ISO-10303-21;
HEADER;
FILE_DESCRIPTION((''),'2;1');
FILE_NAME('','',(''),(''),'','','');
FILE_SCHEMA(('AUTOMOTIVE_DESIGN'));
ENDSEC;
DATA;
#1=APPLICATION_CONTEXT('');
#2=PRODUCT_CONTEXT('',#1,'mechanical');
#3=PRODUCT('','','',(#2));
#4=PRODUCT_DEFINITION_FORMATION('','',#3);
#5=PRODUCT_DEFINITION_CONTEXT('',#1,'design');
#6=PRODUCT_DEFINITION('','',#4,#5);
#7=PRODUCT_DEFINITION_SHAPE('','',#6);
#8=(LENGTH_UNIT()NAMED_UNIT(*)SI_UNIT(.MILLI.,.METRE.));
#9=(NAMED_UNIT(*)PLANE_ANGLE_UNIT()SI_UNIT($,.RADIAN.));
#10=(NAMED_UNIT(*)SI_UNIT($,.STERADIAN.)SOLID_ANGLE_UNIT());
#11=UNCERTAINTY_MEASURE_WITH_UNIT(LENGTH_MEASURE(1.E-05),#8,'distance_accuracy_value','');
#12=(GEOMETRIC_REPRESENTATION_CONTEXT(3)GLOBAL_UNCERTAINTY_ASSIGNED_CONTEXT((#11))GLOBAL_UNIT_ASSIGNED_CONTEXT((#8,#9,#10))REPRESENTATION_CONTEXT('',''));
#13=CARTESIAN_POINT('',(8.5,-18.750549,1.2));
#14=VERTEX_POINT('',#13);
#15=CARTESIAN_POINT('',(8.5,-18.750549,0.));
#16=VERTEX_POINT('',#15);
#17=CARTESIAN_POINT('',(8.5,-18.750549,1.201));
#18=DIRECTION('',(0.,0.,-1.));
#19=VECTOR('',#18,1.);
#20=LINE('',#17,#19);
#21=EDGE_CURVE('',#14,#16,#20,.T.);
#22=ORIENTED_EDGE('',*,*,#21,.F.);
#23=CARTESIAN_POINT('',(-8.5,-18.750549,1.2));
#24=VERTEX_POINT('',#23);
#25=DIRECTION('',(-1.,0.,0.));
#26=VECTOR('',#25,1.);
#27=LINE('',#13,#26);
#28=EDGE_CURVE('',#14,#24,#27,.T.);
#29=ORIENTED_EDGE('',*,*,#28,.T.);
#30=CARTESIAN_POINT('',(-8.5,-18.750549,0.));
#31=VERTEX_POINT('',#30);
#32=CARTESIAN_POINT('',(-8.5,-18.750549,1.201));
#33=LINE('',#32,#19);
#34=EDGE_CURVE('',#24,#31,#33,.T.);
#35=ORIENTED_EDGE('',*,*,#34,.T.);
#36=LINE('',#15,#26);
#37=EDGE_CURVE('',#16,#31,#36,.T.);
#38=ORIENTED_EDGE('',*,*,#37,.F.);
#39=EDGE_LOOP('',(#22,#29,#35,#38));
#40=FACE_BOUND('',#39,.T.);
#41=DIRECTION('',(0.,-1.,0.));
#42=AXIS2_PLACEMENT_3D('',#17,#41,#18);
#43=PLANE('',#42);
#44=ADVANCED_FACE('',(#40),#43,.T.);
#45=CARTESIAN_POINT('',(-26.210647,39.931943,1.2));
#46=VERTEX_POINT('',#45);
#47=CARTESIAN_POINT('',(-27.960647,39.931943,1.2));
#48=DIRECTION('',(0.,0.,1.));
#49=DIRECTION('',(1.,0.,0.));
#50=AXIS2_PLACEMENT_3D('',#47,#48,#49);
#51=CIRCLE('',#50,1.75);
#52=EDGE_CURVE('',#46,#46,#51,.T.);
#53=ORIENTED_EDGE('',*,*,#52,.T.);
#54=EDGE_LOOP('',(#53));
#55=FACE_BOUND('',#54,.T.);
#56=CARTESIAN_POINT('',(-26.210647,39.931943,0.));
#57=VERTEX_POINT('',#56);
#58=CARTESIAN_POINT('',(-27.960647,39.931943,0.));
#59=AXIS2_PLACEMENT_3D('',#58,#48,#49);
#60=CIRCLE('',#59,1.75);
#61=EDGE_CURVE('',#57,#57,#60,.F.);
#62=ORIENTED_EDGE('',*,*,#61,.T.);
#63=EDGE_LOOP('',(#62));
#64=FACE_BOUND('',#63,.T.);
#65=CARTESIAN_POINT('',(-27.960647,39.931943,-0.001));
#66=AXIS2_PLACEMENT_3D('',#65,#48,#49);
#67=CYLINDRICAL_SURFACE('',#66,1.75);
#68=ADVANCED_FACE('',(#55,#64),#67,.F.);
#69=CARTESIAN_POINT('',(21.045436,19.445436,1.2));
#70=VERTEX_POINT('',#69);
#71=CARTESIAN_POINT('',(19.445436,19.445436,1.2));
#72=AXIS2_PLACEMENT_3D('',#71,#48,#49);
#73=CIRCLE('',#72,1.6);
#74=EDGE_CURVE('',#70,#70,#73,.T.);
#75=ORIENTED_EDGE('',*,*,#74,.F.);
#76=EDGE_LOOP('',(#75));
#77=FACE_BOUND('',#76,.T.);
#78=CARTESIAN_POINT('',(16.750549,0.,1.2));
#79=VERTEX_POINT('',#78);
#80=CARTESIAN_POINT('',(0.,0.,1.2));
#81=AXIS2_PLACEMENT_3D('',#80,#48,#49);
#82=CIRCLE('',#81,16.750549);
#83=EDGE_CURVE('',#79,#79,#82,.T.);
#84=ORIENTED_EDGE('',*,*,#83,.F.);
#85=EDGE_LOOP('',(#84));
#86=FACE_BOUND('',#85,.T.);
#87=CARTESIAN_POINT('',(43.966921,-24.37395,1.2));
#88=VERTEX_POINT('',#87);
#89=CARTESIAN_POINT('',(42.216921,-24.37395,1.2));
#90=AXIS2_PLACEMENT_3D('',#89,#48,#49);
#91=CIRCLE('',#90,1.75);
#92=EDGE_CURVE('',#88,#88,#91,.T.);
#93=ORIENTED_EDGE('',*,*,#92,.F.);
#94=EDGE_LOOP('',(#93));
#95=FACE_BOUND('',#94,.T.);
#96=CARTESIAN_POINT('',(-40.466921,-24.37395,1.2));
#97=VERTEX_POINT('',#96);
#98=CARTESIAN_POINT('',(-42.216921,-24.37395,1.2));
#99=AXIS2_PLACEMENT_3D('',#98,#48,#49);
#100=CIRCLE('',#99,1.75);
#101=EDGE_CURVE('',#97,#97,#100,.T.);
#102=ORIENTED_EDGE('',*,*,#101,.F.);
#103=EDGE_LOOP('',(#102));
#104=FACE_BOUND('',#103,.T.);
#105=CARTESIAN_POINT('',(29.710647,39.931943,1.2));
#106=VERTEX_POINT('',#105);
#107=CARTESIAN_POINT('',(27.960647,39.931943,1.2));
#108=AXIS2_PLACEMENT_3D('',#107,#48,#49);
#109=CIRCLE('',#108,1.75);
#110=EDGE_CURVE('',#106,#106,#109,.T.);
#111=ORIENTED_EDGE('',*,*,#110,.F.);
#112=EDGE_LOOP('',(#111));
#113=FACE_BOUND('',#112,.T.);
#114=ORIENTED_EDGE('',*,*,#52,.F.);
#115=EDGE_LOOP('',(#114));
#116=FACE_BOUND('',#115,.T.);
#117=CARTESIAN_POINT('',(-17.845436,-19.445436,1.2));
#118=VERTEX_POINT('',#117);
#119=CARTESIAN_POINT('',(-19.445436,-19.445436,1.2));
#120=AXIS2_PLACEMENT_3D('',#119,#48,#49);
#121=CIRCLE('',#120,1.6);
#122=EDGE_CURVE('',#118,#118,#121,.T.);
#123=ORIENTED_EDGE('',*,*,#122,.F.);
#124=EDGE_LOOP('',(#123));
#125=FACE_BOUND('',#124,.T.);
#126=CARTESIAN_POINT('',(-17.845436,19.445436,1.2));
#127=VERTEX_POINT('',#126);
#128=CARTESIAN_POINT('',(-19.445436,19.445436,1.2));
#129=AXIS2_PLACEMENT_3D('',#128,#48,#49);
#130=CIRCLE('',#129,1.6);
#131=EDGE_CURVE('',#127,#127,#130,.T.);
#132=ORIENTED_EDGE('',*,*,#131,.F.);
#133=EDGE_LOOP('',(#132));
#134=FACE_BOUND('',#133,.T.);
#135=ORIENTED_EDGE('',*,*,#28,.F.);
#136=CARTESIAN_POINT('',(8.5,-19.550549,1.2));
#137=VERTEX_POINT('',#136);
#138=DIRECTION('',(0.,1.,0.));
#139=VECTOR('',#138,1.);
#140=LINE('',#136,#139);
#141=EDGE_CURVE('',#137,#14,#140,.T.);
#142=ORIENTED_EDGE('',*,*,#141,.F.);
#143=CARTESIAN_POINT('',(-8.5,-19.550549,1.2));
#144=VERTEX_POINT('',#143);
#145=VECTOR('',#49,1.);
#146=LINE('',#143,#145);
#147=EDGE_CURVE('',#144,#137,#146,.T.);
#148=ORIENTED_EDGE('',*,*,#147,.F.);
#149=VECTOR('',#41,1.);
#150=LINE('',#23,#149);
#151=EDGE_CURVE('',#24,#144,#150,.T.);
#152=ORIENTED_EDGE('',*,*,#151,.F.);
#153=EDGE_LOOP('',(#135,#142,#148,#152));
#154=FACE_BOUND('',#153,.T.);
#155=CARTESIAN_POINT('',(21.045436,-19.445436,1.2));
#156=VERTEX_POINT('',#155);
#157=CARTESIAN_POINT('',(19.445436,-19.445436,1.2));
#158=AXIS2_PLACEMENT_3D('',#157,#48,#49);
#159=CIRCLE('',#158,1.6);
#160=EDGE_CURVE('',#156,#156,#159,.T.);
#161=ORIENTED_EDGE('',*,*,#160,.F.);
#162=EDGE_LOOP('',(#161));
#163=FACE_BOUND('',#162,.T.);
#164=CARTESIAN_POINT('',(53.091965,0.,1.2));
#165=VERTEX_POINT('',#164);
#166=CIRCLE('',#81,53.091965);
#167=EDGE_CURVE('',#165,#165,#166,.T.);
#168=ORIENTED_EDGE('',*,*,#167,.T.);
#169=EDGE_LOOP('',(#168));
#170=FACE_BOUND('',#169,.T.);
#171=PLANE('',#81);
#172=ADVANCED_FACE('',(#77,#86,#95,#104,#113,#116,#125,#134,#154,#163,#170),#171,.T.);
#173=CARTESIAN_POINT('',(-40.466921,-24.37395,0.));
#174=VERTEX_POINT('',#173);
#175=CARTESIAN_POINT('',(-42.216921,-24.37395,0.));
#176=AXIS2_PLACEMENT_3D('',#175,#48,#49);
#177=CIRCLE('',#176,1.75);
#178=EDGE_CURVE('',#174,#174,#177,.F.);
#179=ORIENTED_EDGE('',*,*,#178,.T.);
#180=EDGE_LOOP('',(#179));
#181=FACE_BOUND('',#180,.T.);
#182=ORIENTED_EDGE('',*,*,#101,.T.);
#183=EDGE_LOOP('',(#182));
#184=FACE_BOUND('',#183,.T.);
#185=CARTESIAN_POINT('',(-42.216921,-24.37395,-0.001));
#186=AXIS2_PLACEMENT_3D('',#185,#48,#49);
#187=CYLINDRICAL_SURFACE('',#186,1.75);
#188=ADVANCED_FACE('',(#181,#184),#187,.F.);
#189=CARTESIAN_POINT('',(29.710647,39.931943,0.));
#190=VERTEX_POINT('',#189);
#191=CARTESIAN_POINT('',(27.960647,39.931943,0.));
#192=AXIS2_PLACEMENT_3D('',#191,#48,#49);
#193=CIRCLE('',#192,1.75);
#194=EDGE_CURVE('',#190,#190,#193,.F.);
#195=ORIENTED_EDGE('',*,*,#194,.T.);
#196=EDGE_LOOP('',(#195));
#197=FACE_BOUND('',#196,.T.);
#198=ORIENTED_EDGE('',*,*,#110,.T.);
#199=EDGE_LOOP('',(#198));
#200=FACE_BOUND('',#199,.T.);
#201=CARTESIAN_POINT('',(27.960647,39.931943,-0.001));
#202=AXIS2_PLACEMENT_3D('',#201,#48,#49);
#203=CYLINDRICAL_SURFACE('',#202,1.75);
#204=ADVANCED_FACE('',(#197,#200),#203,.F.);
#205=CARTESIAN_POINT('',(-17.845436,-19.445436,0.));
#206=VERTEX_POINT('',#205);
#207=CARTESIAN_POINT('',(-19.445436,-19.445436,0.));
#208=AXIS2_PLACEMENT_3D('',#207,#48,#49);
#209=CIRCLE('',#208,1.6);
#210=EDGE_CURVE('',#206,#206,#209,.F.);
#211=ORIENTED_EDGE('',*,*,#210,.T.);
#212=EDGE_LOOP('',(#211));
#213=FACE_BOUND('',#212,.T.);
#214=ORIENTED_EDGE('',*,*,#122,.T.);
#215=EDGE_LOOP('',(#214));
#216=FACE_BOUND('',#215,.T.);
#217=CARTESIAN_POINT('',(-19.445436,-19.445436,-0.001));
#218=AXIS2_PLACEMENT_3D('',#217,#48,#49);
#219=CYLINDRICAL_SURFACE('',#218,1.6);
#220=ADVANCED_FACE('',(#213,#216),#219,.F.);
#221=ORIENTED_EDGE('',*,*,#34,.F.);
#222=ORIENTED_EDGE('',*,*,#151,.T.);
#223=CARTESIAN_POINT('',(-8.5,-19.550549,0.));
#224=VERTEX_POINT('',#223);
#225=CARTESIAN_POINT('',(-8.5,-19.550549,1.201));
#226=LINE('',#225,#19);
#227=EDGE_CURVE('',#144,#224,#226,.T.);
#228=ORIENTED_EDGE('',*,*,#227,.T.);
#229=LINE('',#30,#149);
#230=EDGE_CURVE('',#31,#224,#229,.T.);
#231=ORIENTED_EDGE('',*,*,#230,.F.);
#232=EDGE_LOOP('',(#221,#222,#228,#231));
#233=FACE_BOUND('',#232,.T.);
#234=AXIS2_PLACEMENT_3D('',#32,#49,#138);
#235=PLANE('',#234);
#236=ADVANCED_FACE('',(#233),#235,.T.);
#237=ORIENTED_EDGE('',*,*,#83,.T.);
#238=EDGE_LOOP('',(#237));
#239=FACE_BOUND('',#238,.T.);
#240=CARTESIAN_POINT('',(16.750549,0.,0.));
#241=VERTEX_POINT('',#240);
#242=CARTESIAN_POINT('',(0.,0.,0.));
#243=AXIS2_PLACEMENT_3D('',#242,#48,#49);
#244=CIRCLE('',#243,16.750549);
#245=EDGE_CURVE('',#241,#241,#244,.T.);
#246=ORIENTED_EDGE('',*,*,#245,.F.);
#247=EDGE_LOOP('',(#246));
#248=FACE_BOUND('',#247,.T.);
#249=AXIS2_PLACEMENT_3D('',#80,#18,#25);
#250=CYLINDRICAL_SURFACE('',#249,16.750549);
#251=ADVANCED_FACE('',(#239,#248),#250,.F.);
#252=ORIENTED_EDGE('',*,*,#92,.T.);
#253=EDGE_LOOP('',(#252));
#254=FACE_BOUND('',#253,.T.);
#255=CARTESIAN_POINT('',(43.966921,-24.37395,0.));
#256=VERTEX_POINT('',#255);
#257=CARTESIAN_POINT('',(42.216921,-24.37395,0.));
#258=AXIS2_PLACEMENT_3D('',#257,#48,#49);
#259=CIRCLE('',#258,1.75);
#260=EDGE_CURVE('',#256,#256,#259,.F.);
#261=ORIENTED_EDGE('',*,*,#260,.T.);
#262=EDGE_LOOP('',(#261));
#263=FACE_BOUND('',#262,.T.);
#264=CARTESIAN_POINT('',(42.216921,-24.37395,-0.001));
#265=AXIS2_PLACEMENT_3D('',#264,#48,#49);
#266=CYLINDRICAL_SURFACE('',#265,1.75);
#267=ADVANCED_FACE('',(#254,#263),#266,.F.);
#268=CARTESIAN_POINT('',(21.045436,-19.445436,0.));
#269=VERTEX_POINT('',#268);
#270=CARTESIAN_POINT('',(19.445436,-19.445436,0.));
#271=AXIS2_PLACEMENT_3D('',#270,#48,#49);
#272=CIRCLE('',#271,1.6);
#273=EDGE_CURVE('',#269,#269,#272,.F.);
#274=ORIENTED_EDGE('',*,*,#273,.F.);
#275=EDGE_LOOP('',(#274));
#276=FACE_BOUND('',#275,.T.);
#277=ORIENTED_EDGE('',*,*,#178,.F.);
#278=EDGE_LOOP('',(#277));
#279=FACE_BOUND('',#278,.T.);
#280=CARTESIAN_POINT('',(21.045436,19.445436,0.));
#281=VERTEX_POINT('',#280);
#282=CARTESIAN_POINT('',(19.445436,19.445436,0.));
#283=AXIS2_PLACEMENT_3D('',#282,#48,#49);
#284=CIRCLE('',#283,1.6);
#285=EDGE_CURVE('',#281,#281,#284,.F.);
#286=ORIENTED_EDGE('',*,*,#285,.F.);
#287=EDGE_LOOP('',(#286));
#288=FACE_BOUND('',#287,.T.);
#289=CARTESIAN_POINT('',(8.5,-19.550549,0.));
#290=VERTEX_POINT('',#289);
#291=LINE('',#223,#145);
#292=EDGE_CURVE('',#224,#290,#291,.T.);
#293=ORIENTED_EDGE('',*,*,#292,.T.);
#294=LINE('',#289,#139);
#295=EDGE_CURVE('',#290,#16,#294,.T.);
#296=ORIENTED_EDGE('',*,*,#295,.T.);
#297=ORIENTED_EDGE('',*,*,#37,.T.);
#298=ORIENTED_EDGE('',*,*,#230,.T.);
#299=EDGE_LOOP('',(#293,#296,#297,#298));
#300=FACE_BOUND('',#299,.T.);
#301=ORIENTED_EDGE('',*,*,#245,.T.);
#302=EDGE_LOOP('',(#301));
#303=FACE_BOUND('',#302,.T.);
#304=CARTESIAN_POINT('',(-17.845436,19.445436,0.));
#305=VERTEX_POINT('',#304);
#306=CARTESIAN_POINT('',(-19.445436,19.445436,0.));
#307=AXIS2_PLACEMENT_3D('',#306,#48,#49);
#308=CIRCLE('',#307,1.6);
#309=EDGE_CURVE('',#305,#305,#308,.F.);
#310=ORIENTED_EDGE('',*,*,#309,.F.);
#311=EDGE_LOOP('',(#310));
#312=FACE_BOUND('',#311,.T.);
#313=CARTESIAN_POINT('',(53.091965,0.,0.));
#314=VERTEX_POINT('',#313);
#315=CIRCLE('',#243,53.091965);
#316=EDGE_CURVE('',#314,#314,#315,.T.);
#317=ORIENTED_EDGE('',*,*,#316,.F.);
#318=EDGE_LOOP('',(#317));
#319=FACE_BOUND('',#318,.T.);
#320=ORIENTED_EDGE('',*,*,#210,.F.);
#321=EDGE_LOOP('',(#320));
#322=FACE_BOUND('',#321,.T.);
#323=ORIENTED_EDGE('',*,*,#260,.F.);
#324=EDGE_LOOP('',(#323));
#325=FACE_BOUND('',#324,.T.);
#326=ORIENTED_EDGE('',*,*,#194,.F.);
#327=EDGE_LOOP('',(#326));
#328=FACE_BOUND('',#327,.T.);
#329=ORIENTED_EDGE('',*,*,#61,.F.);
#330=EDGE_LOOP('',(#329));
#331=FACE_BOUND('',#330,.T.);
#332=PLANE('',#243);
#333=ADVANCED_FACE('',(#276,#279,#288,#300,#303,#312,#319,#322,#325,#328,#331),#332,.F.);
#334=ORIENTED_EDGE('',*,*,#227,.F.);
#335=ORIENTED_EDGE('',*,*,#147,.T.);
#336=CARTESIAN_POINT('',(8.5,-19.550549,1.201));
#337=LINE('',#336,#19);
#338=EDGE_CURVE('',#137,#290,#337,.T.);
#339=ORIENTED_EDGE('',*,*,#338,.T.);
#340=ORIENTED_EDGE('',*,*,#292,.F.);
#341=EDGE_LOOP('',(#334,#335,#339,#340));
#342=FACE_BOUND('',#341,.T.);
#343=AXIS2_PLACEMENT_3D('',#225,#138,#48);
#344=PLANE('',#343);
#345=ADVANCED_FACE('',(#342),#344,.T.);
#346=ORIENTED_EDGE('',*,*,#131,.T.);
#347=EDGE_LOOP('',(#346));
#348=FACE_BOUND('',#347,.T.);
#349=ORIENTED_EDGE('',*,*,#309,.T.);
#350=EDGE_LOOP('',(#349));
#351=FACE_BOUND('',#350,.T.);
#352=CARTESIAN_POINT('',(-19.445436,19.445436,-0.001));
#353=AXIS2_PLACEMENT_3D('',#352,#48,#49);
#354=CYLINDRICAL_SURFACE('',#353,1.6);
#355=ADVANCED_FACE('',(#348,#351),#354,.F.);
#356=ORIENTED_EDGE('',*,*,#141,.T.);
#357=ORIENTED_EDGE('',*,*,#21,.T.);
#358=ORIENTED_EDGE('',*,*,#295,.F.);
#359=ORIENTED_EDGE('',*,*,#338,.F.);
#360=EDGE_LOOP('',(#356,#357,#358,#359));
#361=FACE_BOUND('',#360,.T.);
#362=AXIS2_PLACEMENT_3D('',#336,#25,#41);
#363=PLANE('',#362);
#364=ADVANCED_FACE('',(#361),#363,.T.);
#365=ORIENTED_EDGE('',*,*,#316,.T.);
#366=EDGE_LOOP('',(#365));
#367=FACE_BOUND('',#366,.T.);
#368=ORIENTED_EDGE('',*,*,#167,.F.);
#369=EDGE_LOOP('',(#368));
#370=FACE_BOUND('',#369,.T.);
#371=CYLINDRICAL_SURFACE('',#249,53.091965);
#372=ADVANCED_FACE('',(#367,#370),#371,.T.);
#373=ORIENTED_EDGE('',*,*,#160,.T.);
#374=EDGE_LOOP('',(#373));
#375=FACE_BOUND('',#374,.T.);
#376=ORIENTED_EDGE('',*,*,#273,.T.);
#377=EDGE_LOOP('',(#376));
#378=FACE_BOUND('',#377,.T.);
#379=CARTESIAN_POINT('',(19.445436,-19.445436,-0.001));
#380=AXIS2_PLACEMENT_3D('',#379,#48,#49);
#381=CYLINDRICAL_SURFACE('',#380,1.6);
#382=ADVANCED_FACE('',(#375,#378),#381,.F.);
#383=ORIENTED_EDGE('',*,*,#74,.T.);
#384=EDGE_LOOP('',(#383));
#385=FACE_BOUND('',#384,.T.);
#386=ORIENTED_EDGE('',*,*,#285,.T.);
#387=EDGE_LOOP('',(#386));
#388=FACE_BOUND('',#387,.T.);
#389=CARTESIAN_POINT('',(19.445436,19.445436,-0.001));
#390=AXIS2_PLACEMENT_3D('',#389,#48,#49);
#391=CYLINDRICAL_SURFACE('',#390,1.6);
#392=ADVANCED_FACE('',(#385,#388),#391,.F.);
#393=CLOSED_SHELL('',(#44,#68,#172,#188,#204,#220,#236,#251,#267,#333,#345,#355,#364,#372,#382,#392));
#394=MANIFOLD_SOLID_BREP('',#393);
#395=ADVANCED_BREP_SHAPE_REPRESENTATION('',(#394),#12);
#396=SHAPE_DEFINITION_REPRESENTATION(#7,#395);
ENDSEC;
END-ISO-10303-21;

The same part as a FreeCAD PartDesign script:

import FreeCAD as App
import Part
import Sketcher

V = App.Vector
Q = App.Units.Quantity


def add_polygon(sketch, points):
    """Adds a closed chain of lines whose ends are joined by coincident constraints."""
    first, n = sketch.GeometryCount, len(points)
    for a, b in zip(points, points[1:] + points[:1]):
        sketch.addGeometry(Part.LineSegment(App.Vector(*a, 0), App.Vector(*b, 0)), False)
    for i in range(n):
        sketch.addConstraint(Sketcher.Constraint("Coincident", first + i, 2, first + (i + 1) % n, 1))

doc = App.newDocument("Part")
body = doc.addObject("PartDesign::Body", "Body")

# Sketch on XY plane
sketch1 = body.newObject("Sketcher::SketchObject", "Sketch")
sketch1.AttachmentSupport = (doc.getObject("XY_Plane"), [""])
sketch1.MapMode = "FlatFace"
sketch1.addGeometry([
    Part.Circle(V(0, 0, 0), V(0, 0, 1), 53),
    Part.Circle(V(0, 0, 0), V(0, 0, 1), 17),
], False)
sketch1.addConstraint([
    Sketcher.Constraint("Coincident", 0, 3, -1, 1),
    Sketcher.Constraint("Coincident", 1, 3, -1, 1),
    Sketcher.Constraint("Diameter", 0, Q("106.183931 mm")),
    Sketcher.Constraint("Diameter", 1, Q("33.501097 mm")),
])
pad1 = body.newObject("PartDesign::Pad", "Pad")
pad1.Profile = sketch1
pad1.Length = 1.2

# Sketch on XY plane
sketch2 = body.newObject("Sketcher::SketchObject", "Sketch001")
sketch2.AttachmentSupport = (doc.getObject("XY_Plane"), [""])
sketch2.MapMode = "FlatFace"
sketch2.AttachmentOffset = App.Placement(V(0, 0, 1.2), App.Rotation())
sketch2.addGeometry(Part.Circle(V(-19.4, -19.4, 0), V(0, 0, 1), 1.6), False)
sketch2.addConstraint([
    Sketcher.Constraint("Diameter", 0, Q("3.2 mm")),
    Sketcher.Constraint("DistanceX", 0, 3, -1, 1, Q("19.445436 mm")),
    Sketcher.Constraint("DistanceY", 0, 3, -1, 1, Q("19.445436 mm")),
])
pocket1 = body.newObject("PartDesign::Pocket", "Pocket")
pocket1.Profile = sketch2
pocket1.Type = "UpToFirst"

# Sketch on XY plane
sketch3 = body.newObject("Sketcher::SketchObject", "Sketch002")
sketch3.AttachmentSupport = (doc.getObject("XY_Plane"), [""])
sketch3.MapMode = "FlatFace"
sketch3.AttachmentOffset = App.Placement(V(0, 0, 1.2), App.Rotation())
sketch3.addGeometry(Part.Circle(V(-19.4, 19.4, 0), V(0, 0, 1), 1.6), False)
sketch3.addConstraint([
    Sketcher.Constraint("Diameter", 0, Q("3.2 mm")),
    Sketcher.Constraint("DistanceX", 0, 3, -1, 1, Q("19.445436 mm")),
    Sketcher.Constraint("DistanceY", -1, 1, 0, 3, Q("19.445436 mm")),
])
pocket2 = body.newObject("PartDesign::Pocket", "Pocket001")
pocket2.Profile = sketch3
pocket2.Type = "UpToFirst"

# Sketch on XY plane
sketch4 = body.newObject("Sketcher::SketchObject", "Sketch003")
sketch4.AttachmentSupport = (doc.getObject("XY_Plane"), [""])
sketch4.MapMode = "FlatFace"
sketch4.AttachmentOffset = App.Placement(V(0, 0, 1.2), App.Rotation())
sketch4.addGeometry(Part.Circle(V(19.4, 19.4, 0), V(0, 0, 1), 1.6), False)
sketch4.addConstraint([
    Sketcher.Constraint("Diameter", 0, Q("3.2 mm")),
    Sketcher.Constraint("DistanceX", -1, 1, 0, 3, Q("19.445436 mm")),
    Sketcher.Constraint("DistanceY", -1, 1, 0, 3, Q("19.445436 mm")),
])
pocket3 = body.newObject("PartDesign::Pocket", "Pocket002")
pocket3.Profile = sketch4
pocket3.Type = "UpToFirst"

# Sketch on XY plane
sketch5 = body.newObject("Sketcher::SketchObject", "Sketch004")
sketch5.AttachmentSupport = (doc.getObject("XY_Plane"), [""])
sketch5.MapMode = "FlatFace"
sketch5.AttachmentOffset = App.Placement(V(0, 0, 1.2), App.Rotation())
sketch5.addGeometry(Part.Circle(V(19.4, -19.4, 0), V(0, 0, 1), 1.6), False)
sketch5.addConstraint([
    Sketcher.Constraint("Diameter", 0, Q("3.2 mm")),
    Sketcher.Constraint("DistanceX", -1, 1, 0, 3, Q("19.445436 mm")),
    Sketcher.Constraint("DistanceY", 0, 3, -1, 1, Q("19.445436 mm")),
])
pocket4 = body.newObject("PartDesign::Pocket", "Pocket003")
pocket4.Profile = sketch5
pocket4.Type = "UpToFirst"

# Sketch on XY plane
sketch6 = body.newObject("Sketcher::SketchObject", "Sketch005")
sketch6.AttachmentSupport = (doc.getObject("XY_Plane"), [""])
sketch6.MapMode = "FlatFace"
sketch6.AttachmentOffset = App.Placement(V(0, 0, 1.2), App.Rotation())
sketch6.addGeometry(Part.Circle(V(28, 39.9, 0), V(0, 0, 1), 1.8), False)
sketch6.addConstraint([
    Sketcher.Constraint("Diameter", 0, Q("3.5 mm")),
    Sketcher.Constraint("DistanceX", -1, 1, 0, 3, Q("27.960647 mm")),
    Sketcher.Constraint("DistanceY", -1, 1, 0, 3, Q("39.931943 mm")),
])
pocket5 = body.newObject("PartDesign::Pocket", "Pocket004")
pocket5.Profile = sketch6
pocket5.Type = "UpToFirst"

# Sketch on XY plane
sketch7 = body.newObject("Sketcher::SketchObject", "Sketch006")
sketch7.AttachmentSupport = (doc.getObject("XY_Plane"), [""])
sketch7.MapMode = "FlatFace"
sketch7.AttachmentOffset = App.Placement(V(0, 0, 1.2), App.Rotation())
sketch7.addGeometry(Part.Circle(V(42.2, -24.4, 0), V(0, 0, 1), 1.8), False)
sketch7.addConstraint([
    Sketcher.Constraint("Diameter", 0, Q("3.5 mm")),
    Sketcher.Constraint("DistanceX", -1, 1, 0, 3, Q("42.216921 mm")),
    Sketcher.Constraint("DistanceY", 0, 3, -1, 1, Q("24.37395 mm")),
])
pocket6 = body.newObject("PartDesign::Pocket", "Pocket005")
pocket6.Profile = sketch7
pocket6.Type = "UpToFirst"

# Sketch on XY plane
sketch8 = body.newObject("Sketcher::SketchObject", "Sketch007")
sketch8.AttachmentSupport = (doc.getObject("XY_Plane"), [""])
sketch8.MapMode = "FlatFace"
sketch8.AttachmentOffset = App.Placement(V(0, 0, 1.2), App.Rotation())
sketch8.addGeometry(Part.Circle(V(-42.2, -24.4, 0), V(0, 0, 1), 1.8), False)
sketch8.addConstraint([
    Sketcher.Constraint("Diameter", 0, Q("3.5 mm")),
    Sketcher.Constraint("DistanceX", 0, 3, -1, 1, Q("42.216921 mm")),
    Sketcher.Constraint("DistanceY", 0, 3, -1, 1, Q("24.37395 mm")),
])
pocket7 = body.newObject("PartDesign::Pocket", "Pocket006")
pocket7.Profile = sketch8
pocket7.Type = "UpToFirst"

# Sketch on XY plane
sketch9 = body.newObject("Sketcher::SketchObject", "Sketch008")
sketch9.AttachmentSupport = (doc.getObject("XY_Plane"), [""])
sketch9.MapMode = "FlatFace"
sketch9.AttachmentOffset = App.Placement(V(0, 0, 1.2), App.Rotation())
sketch9.addGeometry(Part.Circle(V(-28, 39.9, 0), V(0, 0, 1), 1.8), False)
sketch9.addConstraint([
    Sketcher.Constraint("Diameter", 0, Q("3.5 mm")),
    Sketcher.Constraint("DistanceX", 0, 3, -1, 1, Q("27.960647 mm")),
    Sketcher.Constraint("DistanceY", -1, 1, 0, 3, Q("39.931943 mm")),
])
pocket8 = body.newObject("PartDesign::Pocket", "Pocket007")
pocket8.Profile = sketch9
pocket8.Type = "UpToFirst"

# Sketch on XY plane
sketch10 = body.newObject("Sketcher::SketchObject", "Sketch009")
sketch10.AttachmentSupport = (doc.getObject("XY_Plane"), [""])
sketch10.MapMode = "FlatFace"
add_polygon(sketch10, [(-8.5, -18.8), (-8.5, -19.6), (8.5, -19.6), (8.5, -18.8)])  # lines 0-3
sketch10.addConstraint([
    Sketcher.Constraint("Vertical", 0),
    Sketcher.Constraint("Horizontal", 1),
    Sketcher.Constraint("Vertical", 2),
    Sketcher.Constraint("Horizontal", 3),
    Sketcher.Constraint("DistanceX", 1, 1, 1, 2, Q("17 mm")),
    Sketcher.Constraint("DistanceY", 0, 2, 0, 1, Q("0.8 mm")),
    Sketcher.Constraint("DistanceX", 0, 2, -1, 1, Q("8.5 mm")),
    Sketcher.Constraint("DistanceY", 0, 2, -1, 1, Q("19.550549 mm")),
])
pocket9 = body.newObject("PartDesign::Pocket", "Pocket008")
pocket9.Profile = sketch10
pocket9.Type = "UpToFirst"
pocket9.Reversed = True

doc.recompute()
